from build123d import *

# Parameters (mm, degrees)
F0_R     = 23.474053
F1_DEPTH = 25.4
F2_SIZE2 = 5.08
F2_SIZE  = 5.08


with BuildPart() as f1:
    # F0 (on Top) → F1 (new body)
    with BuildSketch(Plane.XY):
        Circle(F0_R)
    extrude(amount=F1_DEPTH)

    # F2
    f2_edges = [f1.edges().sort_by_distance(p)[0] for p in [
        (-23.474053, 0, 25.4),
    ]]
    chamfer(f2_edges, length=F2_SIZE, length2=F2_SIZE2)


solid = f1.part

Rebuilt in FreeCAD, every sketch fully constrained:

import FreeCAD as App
import Part
import Sketcher
from FreeCAD import Vector
Q = App.Units.Quantity


def edges_at(feature, points):
    """Names of the edges that pass closest to the given points."""
    edges = feature.Shape.Edges
    near = lambda p: min(range(len(edges)), key=lambda i: edges[i].distToShape(Part.Vertex(*p))[0])
    return sorted({f"Edge{near(p) + 1}" for p in points})

doc = App.newDocument("Part")
body = doc.addObject("PartDesign::Body", "Body")

# Sketch on XY plane
sketch1 = body.newObject("Sketcher::SketchObject", "Sketch")
sketch1.AttachmentSupport = (doc.getObject("XY_Plane"), [""])
sketch1.MapMode = "FlatFace"
sketch1.addGeometry(Part.Circle(Vector(0, 0, 0), Vector(0, 0, 1), 23), False)
sketch1.addConstraint(Sketcher.Constraint("Coincident", 0, 3, -1, 1))
sketch1.addConstraint(Sketcher.Constraint("Diameter", 0, Q("46.948106 mm")))
pad1 = body.newObject("PartDesign::Pad", "Pad")
pad1.Profile = sketch1
pad1.Length = Q("1 in")
doc.recompute()

chamfer = body.newObject("PartDesign::Chamfer", "Chamfer")
chamfer.Base = (pad1, edges_at(pad1, [(-23.474, 0, 25.4)]))
chamfer.ChamferType = "Two distances"
chamfer.Size = Q("0.2 in")
chamfer.Size2 = Q("0.2 in")

doc.recompute()
